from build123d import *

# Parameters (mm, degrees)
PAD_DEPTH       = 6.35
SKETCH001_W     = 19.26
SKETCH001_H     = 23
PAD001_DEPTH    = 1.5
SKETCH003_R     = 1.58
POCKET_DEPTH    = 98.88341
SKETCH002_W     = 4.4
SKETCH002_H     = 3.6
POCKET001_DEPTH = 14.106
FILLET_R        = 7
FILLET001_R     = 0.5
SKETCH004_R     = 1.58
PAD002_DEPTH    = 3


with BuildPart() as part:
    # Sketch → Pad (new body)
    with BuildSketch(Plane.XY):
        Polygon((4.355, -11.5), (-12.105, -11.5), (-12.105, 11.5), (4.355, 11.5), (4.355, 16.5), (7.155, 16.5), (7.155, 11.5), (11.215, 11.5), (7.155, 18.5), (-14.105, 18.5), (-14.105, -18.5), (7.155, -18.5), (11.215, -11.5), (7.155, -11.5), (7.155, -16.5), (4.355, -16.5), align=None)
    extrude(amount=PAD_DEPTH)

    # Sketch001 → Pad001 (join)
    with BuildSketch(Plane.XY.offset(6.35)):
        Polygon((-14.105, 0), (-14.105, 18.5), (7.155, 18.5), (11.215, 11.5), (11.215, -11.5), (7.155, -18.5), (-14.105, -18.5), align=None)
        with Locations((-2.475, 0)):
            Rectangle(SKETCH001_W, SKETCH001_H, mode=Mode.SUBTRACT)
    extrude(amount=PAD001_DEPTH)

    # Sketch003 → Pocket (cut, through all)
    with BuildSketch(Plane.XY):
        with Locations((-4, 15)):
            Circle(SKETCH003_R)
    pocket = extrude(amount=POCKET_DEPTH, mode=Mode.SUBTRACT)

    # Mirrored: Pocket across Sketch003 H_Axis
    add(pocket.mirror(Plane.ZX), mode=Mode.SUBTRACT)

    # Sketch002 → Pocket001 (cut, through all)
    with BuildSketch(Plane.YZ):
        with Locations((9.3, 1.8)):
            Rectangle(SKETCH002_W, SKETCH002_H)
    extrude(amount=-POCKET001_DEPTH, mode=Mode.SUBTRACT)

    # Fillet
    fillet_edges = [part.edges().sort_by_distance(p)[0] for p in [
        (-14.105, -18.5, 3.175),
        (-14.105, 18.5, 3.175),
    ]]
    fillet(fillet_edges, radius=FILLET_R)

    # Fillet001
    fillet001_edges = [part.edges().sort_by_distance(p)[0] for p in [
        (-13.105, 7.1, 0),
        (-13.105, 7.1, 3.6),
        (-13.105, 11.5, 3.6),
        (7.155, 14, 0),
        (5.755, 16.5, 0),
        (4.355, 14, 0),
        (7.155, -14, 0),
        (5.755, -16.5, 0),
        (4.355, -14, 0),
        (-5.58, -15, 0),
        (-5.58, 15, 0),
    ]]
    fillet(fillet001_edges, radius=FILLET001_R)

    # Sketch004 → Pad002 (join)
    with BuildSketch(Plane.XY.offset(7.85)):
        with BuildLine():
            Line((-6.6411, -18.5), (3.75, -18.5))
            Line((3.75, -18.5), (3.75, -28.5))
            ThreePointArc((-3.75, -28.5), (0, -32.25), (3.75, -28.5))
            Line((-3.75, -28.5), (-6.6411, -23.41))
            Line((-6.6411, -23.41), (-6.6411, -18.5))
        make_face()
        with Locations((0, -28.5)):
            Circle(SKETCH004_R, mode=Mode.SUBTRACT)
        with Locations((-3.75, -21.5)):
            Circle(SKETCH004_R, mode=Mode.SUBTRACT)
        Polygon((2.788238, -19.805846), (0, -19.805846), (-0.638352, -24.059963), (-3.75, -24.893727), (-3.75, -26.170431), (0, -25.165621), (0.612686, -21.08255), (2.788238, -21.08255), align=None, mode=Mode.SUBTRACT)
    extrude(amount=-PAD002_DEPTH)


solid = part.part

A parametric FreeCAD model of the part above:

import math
import FreeCAD as App
import Part
import Sketcher
Q = App.Units.Quantity


def edges_at(feature, points):
    """Names of the edges that pass closest to the given points."""
    edges = feature.Shape.Edges
    near = lambda p: min(range(len(edges)), key=lambda i: edges[i].distToShape(Part.Vertex(*p))[0])
    return sorted({f"Edge{near(p) + 1}" for p in points})


def add_polygon(sketch, points):
    """Adds a closed chain of lines whose ends are joined by coincident constraints."""
    first, n = sketch.GeometryCount, len(points)
    for a, b in zip(points, points[1:] + points[:1]):
        sketch.addGeometry(Part.LineSegment(App.Vector(*a, 0), App.Vector(*b, 0)), False)
    for i in range(n):
        sketch.addConstraint(Sketcher.Constraint("Coincident", first + i, 2, first + (i + 1) % n, 1))

doc = App.newDocument("Part")
body = doc.addObject("PartDesign::Body", "Body")

# Sketch on XY plane
sketch1 = body.newObject("Sketcher::SketchObject", "Sketch")
sketch1.AttachmentSupport = (doc.getObject("XY_Plane"), [""])
sketch1.MapMode = "FlatFace"
add_polygon(sketch1, [(4.355, -11.5), (-12.105, -11.5), (-12.105, 11.5), (4.355, 11.5), (4.355, 16.5), (7.155, 16.5), (7.155, 11.5), (11.215, 11.5), (7.155, 18.5), (-14.105, 18.5), (-14.105, -18.5), (7.155, -18.5), (11.215, -11.5), (7.155, -11.5), (7.155, -16.5), (4.355, -16.5)])  # lines 0-15
sketch1.addConstraint(Sketcher.Constraint("Horizontal", 0))
sketch1.addConstraint(Sketcher.Constraint("Vertical", 1))
sketch1.addConstraint(Sketcher.Constraint("Horizontal", 2))
sketch1.addConstraint(Sketcher.Constraint("Vertical", 3))
sketch1.addConstraint(Sketcher.Constraint("Horizontal", 4))
sketch1.addConstraint(Sketcher.Constraint("Vertical", 5))
sketch1.addConstraint(Sketcher.Constraint("Horizontal", 6))
sketch1.addConstraint(Sketcher.Constraint("Horizontal", 8))
sketch1.addConstraint(Sketcher.Constraint("Vertical", 9))
sketch1.addConstraint(Sketcher.Constraint("Horizontal", 10))
sketch1.addConstraint(Sketcher.Constraint("Horizontal", 12))
sketch1.addConstraint(Sketcher.Constraint("Vertical", 13))
sketch1.addConstraint(Sketcher.Constraint("Horizontal", 14))
sketch1.addConstraint(Sketcher.Constraint("Vertical", 15))
sketch1.addConstraint(Sketcher.Constraint("Symmetric", 7, 2, 10, 2, -1))
sketch1.addConstraint(Sketcher.Constraint("Symmetric", 6, 2, 11, 2, -1))
sketch1.addConstraint(Sketcher.Constraint("Symmetric", 4, 2, 13, 2, -1))
sketch1.addConstraint(Sketcher.Constraint("Symmetric", 2, 2, 15, 2, -1))
sketch1.addConstraint(Sketcher.Constraint("Horizontal", 2, 2, 5, 2))
sketch1.addConstraint(Sketcher.Constraint("Vertical", 5, 2, 7, 2))
sketch1.addConstraint(Sketcher.Constraint("DistanceY", 1, 1, 1, 2, Q("23 mm")))
sketch1.addConstraint(Sketcher.Constraint("DistanceY", 3, 1, 3, 2, Q("5 mm")))
sketch1.addConstraint(Sketcher.Constraint("DistanceY", 9, 2, 9, 1, Q("37 mm")))
sketch1.addConstraint(Sketcher.Constraint("DistanceX", 4, 1, 4, 2, Q("2.8 mm")))
sketch1.addConstraint(Sketcher.Constraint("DistanceX", 8, 2, 1, 2, Q("2 mm")))
sketch1.addConstraint(Sketcher.Constraint("DistanceX", 0, 2, 0, 1, Q("16.46 mm")))
sketch1.addConstraint(Sketcher.Constraint("DistanceX", 6, 1, 6, 2, Q("4.06 mm")))
sketch1.addConstraint(Sketcher.Constraint("DistanceX", 0, 2, -1, 1, Q("12.105 mm")))
pad1 = body.newObject("PartDesign::Pad", "Pad")
pad1.Profile = sketch1
pad1.Length = 6.35

# Sketch on XY plane
sketch2 = body.newObject("Sketcher::SketchObject", "Sketch001")
sketch2.AttachmentSupport = (doc.getObject("XY_Plane"), [""])
sketch2.MapMode = "FlatFace"
sketch2.AttachmentOffset = App.Placement(App.Vector(0, 0, 6.35), App.Rotation())
add_polygon(sketch2, [(-14.105, 18.5), (-14.105, -18.5), (7.155, -18.5), (11.215, -11.5), (11.215, 11.5), (7.155, 18.5)])  # lines 0-5
add_polygon(sketch2, [(-12.105, -11.5), (-12.105, 11.5), (7.155, 11.5), (7.155, -11.5)])  # lines 6-9
sketch2.addConstraint(Sketcher.Constraint("Vertical", 0))
sketch2.addConstraint(Sketcher.Constraint("Horizontal", 1))
sketch2.addConstraint(Sketcher.Constraint("Vertical", 3))
sketch2.addConstraint(Sketcher.Constraint("Horizontal", 5))
sketch2.addConstraint(Sketcher.Constraint("Vertical", 6))
sketch2.addConstraint(Sketcher.Constraint("Horizontal", 7))
sketch2.addConstraint(Sketcher.Constraint("Vertical", 8))
sketch2.addConstraint(Sketcher.Constraint("Horizontal", 9))
sketch2.addConstraint(Sketcher.Constraint("Symmetric", 1, 2, 4, 2, -1))
sketch2.addConstraint(Sketcher.Constraint("Horizontal", 3, 2, 6, 2))
sketch2.addConstraint(Sketcher.Constraint("Horizontal", 2, 2, 8, 2))
sketch2.addConstraint(Sketcher.Constraint("Vertical", 4, 2, 7, 2))
sketch2.addConstraint(Sketcher.Constraint("Equal", 2, 4))
sketch2.addConstraint(Sketcher.Constraint("DistanceY", 0, 2, 0, 1, Q("37 mm")))
sketch2.addConstraint(Sketcher.Constraint("DistanceY", 3, 1, 3, 2, Q("23 mm")))
sketch2.addConstraint(Sketcher.Constraint("DistanceX", 5, 2, 6, 2, Q("2 mm")))
sketch2.addConstraint(Sketcher.Constraint("DistanceX", 1, 1, 1, 2, Q("21.26 mm")))
sketch2.addConstraint(Sketcher.Constraint("DistanceX", 1, 2, 2, 2, Q("4.06 mm")))
sketch2.addConstraint(Sketcher.Constraint("DistanceX", 0, 2, -1, 1, Q("14.105 mm")))
pad2 = body.newObject("PartDesign::Pad", "Pad001")
pad2.Profile = sketch2
pad2.Length = 1.5

# Sketch on XY plane
sketch3 = body.newObject("Sketcher::SketchObject", "Sketch002")
sketch3.AttachmentSupport = (doc.getObject("XY_Plane"), [""])
sketch3.MapMode = "FlatFace"
sketch3.addGeometry(Part.Circle(App.Vector(-4, 15, 0), App.Vector(0, 0, 1), 1.58), False)
sketch3.addConstraint(Sketcher.Constraint("Diameter", 0, Q("3.16 mm")))
sketch3.addConstraint(Sketcher.Constraint("DistanceX", 0, 3, -1, 1, Q("4 mm")))
sketch3.addConstraint(Sketcher.Constraint("DistanceY", -1, 1, 0, 3, Q("15 mm")))
pocket1 = body.newObject("PartDesign::Pocket", "Pocket")
pocket1.Profile = sketch3
pocket1.Type = "ThroughAll"
pocket1.Reversed = True
doc.recompute()

mirrored = body.newObject("PartDesign::Mirrored", "Mirrored")
mirrored.Originals = [pocket1]
mirrored.MirrorPlane = (doc.getObject("XZ_Plane"), [""])
body.Tip = mirrored

# Sketch on YZ plane
sketch4 = body.newObject("Sketcher::SketchObject", "Sketch003")
sketch4.AttachmentSupport = (doc.getObject("YZ_Plane"), [""])
sketch4.MapMode = "FlatFace"
add_polygon(sketch4, [(7.1, 3.6), (7.1, 0), (11.5, 0), (11.5, 3.6)])  # lines 0-3
sketch4.addConstraint(Sketcher.Constraint("Vertical", 0))
sketch4.addConstraint(Sketcher.Constraint("Horizontal", 1))
sketch4.addConstraint(Sketcher.Constraint("Vertical", 2))
sketch4.addConstraint(Sketcher.Constraint("Horizontal", 3))
sketch4.addConstraint(Sketcher.Constraint("PointOnObject", 0, 2, -1))
sketch4.addConstraint(Sketcher.Constraint("DistanceX", 1, 1, 1, 2, Q("4.4 mm")))
sketch4.addConstraint(Sketcher.Constraint("DistanceY", 0, 2, 0, 1, Q("3.6 mm")))
sketch4.addConstraint(Sketcher.Constraint("DistanceX", -1, 1, 0, 2, Q("7.1 mm")))
pocket2 = body.newObject("PartDesign::Pocket", "Pocket001")
pocket2.Profile = sketch4
pocket2.Type = "ThroughAll"
doc.recompute()

fillet = body.newObject("PartDesign::Fillet", "Fillet")
fillet.Base = (pocket2, edges_at(pocket2, [(-14.105, -18.5, 3.925), (-14.105, 18.5, 3.925)]))
fillet.Radius = 7
doc.recompute()

fillet2 = body.newObject("PartDesign::Fillet", "Fillet001")
fillet2.Base = (fillet, edges_at(fillet, [
    (-13.105, 7.1, 0),
    (-13.105, 7.1, 3.6),
    (-13.105, 11.5, 3.6),
    (7.155, 14, 0),
    (5.755, 16.5, 0),
    (4.355, 14, 0),
    (7.155, -14, 0),
    (5.755, -16.5, 0),
    (4.355, -14, 0),
    (-5.58, -15, 0),
    (-5.58, 15, 0),
]))
fillet2.Radius = 0.5

# Sketch on XY plane
sketch5 = body.newObject("Sketcher::SketchObject", "Sketch004")
sketch5.AttachmentSupport = (doc.getObject("XY_Plane"), [""])
sketch5.MapMode = "FlatFace"
sketch5.AttachmentOffset = App.Placement(App.Vector(0, 0, 7.85), App.Rotation())
sketch5.addGeometry(Part.LineSegment(App.Vector(3.75, -18.5, 0), App.Vector(-6.6411, -18.5, 0)), False)  # 0
sketch5.addGeometry(Part.LineSegment(App.Vector(-6.6411, -18.5, 0), App.Vector(-6.6411, -23.41, 0)), False)  # 1
sketch5.addGeometry(Part.LineSegment(App.Vector(-6.6411, -23.41, 0), App.Vector(-3.75, -28.5, 0)), False)  # 2
sketch5.addGeometry(Part.ArcOfCircle(Part.Circle(App.Vector(0, -28.5, 0), App.Vector(0, 0, 1), 3.75), math.radians(180), math.radians(360)), False)  # 3
sketch5.addGeometry(Part.LineSegment(App.Vector(3.75, -28.5, 0), App.Vector(3.75, -18.5, 0)), False)  # 4
sketch5.addGeometry(Part.Circle(App.Vector(0, -28.5, 0), App.Vector(0, 0, 1), 1.58), False)  # 5
add_polygon(sketch5, [(2.788238, -19.805846), (2.788238, -21.08255), (0.612686, -21.08255), (0, -25.165621), (-3.75, -26.170431), (-3.75, -24.893727), (-0.638352, -24.059963), (0, -19.805846)])  # lines 6-13
sketch5.addGeometry(Part.Circle(App.Vector(-3.75, -21.5, 0), App.Vector(0, 0, 1), 1.58), False)  # 14
sketch5.addConstraint(Sketcher.Constraint("Coincident", 0, 2, 1, 1))
sketch5.addConstraint(Sketcher.Constraint("Coincident", 1, 2, 2, 1))
sketch5.addConstraint(Sketcher.Constraint("Coincident", 2, 2, 3, 1))
sketch5.addConstraint(Sketcher.Constraint("Tangent", 3, 2, 4, 1))
sketch5.addConstraint(Sketcher.Constraint("Coincident", 4, 2, 0, 1))
sketch5.addConstraint(Sketcher.Constraint("Horizontal", 0))
sketch5.addConstraint(Sketcher.Constraint("Vertical", 1))
sketch5.addConstraint(Sketcher.Constraint("Vertical", 4))
sketch5.addConstraint(Sketcher.Constraint("Vertical", 6))
sketch5.addConstraint(Sketcher.Constraint("Horizontal", 7))
sketch5.addConstraint(Sketcher.Constraint("Vertical", 10))
sketch5.addConstraint(Sketcher.Constraint("Horizontal", 13))
sketch5.addConstraint(Sketcher.Constraint("Coincident", 5, 3, 3, 3))
sketch5.addConstraint(Sketcher.Constraint("Equal", 5, 14))
sketch5.addConstraint(Sketcher.Constraint("Symmetric", 2, 2, 3, 2, -2))
sketch5.addConstraint(Sketcher.Constraint("PointOnObject", 8, 2, -2))
sketch5.addConstraint(Sketcher.Constraint("PointOnObject", 12, 2, -2))
sketch5.addConstraint(Sketcher.Constraint("Parallel", 9, 11))
sketch5.addConstraint(Sketcher.Constraint("Parallel", 8, 12))
sketch5.addConstraint(Sketcher.Constraint("Vertical", 14, 3, 2, 2))
sketch5.addConstraint(Sketcher.Constraint("Vertical", 2, 2, 9, 2))
sketch5.addConstraint(Sketcher.Constraint("Equal", 6, 10))
sketch5.addConstraint(Sketcher.Constraint("Diameter", 5, Q("3.16 mm")))
sketch5.addConstraint(Sketcher.Constraint("DistanceY", 4, 1, 4, 2, Q("10 mm")))
sketch5.addConstraint(Sketcher.Constraint("Angle", 9, Q("-164.999992 deg")))
sketch5.addConstraint(Sketcher.Constraint("Radius", 3, Q("3.75 mm")))
sketch5.addConstraint(Sketcher.Constraint("DistanceY", 3, 3, 14, 3, Q("7 mm")))
sketch5.addConstraint(Sketcher.Constraint("DistanceY", 1, 2, 1, 1, Q("4.91 mm")))
sketch5.addConstraint(Sketcher.Constraint("DistanceY", 3, 3, -1, 1, Q("28.5 mm")))
sketch5.addConstraint(Sketcher.Constraint("DistanceX", 0, 2, 0, 1, Q("10.3911 mm")))
sketch5.addConstraint(Sketcher.Constraint("DistanceX", 13, 1, 13, 2, Q("2.788238 mm")))
sketch5.addConstraint(Sketcher.Constraint("DistanceX", 7, 2, 7, 1, Q("2.175552 mm")))
sketch5.addConstraint(Sketcher.Constraint("DistanceY", 6, 2, 6, 1, Q("1.276704 mm")))
sketch5.addConstraint(Sketcher.Constraint("DistanceY", 6, 2, -1, 1, Q("21.08255 mm")))
sketch5.addConstraint(Sketcher.Constraint("DistanceY", 8, 2, -1, 1, Q("25.165621 mm")))
pad3 = body.newObject("PartDesign::Pad", "Pad002")
pad3.Profile = sketch5
pad3.Length = 3
pad3.Reversed = True

doc.recompute()
